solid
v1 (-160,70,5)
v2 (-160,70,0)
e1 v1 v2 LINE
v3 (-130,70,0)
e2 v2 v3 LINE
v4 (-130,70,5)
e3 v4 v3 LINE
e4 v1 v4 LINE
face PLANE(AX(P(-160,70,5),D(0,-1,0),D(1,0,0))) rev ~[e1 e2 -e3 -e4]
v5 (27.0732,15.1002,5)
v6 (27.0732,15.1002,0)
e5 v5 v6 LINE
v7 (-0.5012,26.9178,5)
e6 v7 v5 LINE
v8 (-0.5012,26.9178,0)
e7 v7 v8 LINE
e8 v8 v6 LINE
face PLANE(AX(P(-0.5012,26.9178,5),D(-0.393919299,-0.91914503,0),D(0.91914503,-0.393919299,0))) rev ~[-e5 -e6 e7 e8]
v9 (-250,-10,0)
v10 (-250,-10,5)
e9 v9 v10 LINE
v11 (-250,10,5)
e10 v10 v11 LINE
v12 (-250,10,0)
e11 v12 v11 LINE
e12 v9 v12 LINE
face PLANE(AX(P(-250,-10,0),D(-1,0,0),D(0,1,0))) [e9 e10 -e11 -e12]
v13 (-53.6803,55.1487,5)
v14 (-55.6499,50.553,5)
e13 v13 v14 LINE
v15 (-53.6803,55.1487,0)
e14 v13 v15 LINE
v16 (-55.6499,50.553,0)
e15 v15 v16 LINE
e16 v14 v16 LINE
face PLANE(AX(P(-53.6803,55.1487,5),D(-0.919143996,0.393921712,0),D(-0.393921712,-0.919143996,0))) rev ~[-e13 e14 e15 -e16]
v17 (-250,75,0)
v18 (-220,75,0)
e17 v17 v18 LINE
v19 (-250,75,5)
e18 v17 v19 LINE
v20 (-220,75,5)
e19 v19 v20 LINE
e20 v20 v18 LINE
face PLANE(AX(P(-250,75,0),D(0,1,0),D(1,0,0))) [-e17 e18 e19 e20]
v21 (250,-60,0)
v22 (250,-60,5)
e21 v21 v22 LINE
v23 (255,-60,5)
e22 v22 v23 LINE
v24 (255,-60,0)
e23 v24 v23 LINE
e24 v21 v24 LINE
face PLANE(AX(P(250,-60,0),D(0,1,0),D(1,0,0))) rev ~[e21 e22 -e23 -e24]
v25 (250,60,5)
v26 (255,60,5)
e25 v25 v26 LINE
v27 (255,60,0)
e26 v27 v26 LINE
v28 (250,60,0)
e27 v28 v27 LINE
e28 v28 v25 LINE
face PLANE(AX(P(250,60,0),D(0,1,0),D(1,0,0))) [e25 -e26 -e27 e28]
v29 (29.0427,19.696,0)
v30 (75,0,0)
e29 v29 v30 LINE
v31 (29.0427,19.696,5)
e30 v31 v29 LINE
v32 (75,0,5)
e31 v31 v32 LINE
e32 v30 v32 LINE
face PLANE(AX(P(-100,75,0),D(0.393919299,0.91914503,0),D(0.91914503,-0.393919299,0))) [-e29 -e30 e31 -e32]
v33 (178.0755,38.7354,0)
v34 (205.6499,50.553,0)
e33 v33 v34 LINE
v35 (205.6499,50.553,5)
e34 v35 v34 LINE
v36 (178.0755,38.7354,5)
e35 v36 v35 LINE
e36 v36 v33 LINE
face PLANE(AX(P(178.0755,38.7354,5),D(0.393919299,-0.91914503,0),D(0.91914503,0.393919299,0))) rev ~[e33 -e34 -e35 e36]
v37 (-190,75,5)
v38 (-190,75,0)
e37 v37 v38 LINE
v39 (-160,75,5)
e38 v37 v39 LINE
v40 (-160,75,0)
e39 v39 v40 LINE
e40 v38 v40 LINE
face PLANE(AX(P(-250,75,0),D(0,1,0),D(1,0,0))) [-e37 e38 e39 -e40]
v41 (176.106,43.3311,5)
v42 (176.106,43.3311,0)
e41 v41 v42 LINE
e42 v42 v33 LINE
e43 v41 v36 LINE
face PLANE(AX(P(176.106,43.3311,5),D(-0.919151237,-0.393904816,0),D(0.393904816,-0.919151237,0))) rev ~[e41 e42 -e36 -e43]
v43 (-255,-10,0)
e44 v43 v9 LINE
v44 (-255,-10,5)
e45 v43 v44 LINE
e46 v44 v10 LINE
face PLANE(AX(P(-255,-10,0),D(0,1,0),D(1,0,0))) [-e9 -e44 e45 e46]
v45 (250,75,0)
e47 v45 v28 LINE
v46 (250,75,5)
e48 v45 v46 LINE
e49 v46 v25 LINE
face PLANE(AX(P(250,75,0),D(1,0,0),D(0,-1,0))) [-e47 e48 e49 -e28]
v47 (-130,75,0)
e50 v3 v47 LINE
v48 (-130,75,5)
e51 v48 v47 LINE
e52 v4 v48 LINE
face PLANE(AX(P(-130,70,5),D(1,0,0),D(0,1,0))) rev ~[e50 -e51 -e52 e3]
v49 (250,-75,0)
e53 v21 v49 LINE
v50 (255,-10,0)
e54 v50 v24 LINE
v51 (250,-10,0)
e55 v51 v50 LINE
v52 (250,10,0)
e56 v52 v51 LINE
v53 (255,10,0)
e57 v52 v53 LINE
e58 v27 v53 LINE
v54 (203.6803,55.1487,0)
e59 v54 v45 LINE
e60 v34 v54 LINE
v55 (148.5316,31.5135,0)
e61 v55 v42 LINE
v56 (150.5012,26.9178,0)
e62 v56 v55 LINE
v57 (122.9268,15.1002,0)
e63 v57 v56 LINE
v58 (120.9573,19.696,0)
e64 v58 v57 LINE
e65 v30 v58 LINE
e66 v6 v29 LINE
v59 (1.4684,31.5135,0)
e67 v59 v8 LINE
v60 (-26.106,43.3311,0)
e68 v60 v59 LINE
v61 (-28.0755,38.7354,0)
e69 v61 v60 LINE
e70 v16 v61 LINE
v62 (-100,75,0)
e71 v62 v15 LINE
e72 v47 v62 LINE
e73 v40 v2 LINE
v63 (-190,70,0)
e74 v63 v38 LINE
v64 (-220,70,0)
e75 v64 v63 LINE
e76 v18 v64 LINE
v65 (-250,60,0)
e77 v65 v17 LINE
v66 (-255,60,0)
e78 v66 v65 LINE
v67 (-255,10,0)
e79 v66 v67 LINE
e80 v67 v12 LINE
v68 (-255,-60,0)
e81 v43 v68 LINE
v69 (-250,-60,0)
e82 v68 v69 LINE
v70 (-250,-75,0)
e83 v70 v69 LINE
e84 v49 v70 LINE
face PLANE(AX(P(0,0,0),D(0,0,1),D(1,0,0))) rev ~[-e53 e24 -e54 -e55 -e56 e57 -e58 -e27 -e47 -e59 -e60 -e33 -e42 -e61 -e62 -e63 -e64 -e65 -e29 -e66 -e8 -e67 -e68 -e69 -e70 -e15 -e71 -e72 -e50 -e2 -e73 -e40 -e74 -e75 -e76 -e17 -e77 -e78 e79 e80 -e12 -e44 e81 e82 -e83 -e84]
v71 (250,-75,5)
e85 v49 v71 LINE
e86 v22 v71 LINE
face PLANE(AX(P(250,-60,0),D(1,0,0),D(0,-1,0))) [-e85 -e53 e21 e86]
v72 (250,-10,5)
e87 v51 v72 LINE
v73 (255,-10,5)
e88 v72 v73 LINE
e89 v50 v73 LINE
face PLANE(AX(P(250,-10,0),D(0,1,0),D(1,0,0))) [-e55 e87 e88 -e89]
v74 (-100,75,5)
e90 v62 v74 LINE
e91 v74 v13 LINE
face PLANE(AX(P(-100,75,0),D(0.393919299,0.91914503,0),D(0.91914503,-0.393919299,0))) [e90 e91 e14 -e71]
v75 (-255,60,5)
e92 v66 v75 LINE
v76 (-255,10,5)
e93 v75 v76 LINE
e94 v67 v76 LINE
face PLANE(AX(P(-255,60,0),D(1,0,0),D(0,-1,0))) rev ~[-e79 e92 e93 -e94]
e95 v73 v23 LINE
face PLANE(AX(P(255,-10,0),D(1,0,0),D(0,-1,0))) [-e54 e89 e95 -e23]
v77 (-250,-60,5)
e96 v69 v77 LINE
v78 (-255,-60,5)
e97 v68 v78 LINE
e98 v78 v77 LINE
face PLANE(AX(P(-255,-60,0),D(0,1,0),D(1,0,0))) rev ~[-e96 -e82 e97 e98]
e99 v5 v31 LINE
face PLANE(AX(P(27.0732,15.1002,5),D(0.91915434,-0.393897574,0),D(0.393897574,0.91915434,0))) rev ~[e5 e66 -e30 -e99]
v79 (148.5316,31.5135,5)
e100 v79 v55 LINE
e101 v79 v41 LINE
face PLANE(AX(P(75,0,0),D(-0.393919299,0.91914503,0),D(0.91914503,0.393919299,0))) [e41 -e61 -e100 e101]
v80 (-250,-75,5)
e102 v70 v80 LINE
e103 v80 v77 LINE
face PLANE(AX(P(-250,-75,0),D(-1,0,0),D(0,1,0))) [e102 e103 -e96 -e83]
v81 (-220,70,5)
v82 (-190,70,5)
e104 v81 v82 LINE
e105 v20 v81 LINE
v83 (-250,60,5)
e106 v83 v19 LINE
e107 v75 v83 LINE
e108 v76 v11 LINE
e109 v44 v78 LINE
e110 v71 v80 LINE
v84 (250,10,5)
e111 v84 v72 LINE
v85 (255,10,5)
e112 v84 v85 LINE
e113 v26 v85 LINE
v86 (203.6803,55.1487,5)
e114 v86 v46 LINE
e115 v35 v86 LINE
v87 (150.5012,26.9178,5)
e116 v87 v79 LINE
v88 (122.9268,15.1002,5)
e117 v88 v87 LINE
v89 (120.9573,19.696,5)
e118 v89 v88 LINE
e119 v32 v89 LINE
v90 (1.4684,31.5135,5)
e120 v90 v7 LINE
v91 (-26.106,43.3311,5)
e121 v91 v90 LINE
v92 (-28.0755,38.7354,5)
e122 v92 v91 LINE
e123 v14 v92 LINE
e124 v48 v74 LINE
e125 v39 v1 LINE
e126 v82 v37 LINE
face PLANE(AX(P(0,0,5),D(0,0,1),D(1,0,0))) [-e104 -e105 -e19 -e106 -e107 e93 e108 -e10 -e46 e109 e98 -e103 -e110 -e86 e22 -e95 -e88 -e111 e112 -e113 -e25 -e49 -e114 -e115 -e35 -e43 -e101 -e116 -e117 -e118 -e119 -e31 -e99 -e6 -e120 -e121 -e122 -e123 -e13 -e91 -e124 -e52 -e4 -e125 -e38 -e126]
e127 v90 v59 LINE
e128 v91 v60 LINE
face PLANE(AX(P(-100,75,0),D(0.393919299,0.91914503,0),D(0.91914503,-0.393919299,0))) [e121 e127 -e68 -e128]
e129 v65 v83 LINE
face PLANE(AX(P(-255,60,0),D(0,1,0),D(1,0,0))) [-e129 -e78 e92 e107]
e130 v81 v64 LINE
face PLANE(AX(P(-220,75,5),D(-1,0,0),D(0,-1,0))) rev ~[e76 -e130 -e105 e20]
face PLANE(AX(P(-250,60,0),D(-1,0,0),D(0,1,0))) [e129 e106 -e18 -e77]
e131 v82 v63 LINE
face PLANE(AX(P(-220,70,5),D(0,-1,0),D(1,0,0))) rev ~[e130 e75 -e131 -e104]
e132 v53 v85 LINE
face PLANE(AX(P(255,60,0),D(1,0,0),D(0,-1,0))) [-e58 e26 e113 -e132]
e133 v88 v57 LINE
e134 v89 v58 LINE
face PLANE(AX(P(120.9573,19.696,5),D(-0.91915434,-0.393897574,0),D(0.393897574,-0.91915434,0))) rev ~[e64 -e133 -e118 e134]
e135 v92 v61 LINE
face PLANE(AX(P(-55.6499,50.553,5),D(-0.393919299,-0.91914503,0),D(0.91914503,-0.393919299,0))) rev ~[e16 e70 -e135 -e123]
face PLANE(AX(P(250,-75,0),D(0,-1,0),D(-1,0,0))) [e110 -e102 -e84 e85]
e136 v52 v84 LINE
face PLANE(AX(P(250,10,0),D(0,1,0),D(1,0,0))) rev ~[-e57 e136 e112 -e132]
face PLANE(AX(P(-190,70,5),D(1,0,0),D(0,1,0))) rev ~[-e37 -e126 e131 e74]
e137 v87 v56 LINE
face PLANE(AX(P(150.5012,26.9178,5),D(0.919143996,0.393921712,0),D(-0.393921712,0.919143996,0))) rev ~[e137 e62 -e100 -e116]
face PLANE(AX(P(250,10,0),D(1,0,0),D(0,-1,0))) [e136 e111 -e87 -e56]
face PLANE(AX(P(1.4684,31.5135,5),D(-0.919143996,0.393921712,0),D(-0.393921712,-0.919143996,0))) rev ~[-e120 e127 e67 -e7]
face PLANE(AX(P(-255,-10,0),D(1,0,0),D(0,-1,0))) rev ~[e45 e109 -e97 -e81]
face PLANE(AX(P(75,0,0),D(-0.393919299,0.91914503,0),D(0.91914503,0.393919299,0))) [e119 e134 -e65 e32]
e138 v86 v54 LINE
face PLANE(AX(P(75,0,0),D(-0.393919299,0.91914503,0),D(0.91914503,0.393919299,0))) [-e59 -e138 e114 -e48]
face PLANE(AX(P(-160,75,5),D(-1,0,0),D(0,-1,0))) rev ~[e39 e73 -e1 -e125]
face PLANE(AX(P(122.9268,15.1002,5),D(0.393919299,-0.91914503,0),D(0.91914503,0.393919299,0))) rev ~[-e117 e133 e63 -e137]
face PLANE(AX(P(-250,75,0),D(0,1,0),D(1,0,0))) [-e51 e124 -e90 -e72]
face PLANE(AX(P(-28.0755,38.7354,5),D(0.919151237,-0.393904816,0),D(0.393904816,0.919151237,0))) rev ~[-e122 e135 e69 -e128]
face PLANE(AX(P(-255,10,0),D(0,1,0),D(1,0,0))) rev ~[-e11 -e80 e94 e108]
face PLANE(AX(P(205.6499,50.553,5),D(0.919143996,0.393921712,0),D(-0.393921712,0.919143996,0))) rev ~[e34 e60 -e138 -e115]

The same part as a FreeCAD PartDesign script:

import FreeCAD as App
import Part
import Sketcher


def add_polygon(sketch, points):
    """Adds a closed chain of lines whose ends are joined by coincident constraints."""
    first, n = sketch.GeometryCount, len(points)
    for a, b in zip(points, points[1:] + points[:1]):
        sketch.addGeometry(Part.LineSegment(App.Vector(*a, 0), App.Vector(*b, 0)), False)
    for i in range(n):
        sketch.addConstraint(Sketcher.Constraint("Coincident", first + i, 2, first + (i + 1) % n, 1))

doc = App.newDocument("Part")
body = doc.addObject("PartDesign::Body", "Body")

# Sketch on XY plane
sketch1 = body.newObject("Sketcher::SketchObject", "Sketch")
sketch1.AttachmentSupport = (doc.getObject("XY_Plane"), [""])
sketch1.MapMode = "FlatFace"
add_polygon(sketch1, [(-250, -75), (250, -75), (250, -60), (255, -60), (255, -10), (250, -10), (250, 10), (255, 10), (255, 60), (250, 60), (250, 75), (75, 0), (-100, 75), (-250, 75), (-250, 60), (-255, 60), (-255, 10), (-250, 10), (-250, -10), (-255, -10), (-255, -60), (-250, -60)])  # lines 0-21
sketch1.addConstraint(Sketcher.Constraint("Horizontal", 0))
sketch1.addConstraint(Sketcher.Constraint("Vertical", 1))
sketch1.addConstraint(Sketcher.Constraint("Horizontal", 2))
sketch1.addConstraint(Sketcher.Constraint("Vertical", 3))
sketch1.addConstraint(Sketcher.Constraint("Horizontal", 4))
sketch1.addConstraint(Sketcher.Constraint("Vertical", 5))
sketch1.addConstraint(Sketcher.Constraint("Horizontal", 6))
sketch1.addConstraint(Sketcher.Constraint("Vertical", 7))
sketch1.addConstraint(Sketcher.Constraint("Horizontal", 8))
sketch1.addConstraint(Sketcher.Constraint("Vertical", 9))
sketch1.addConstraint(Sketcher.Constraint("Horizontal", 12))
sketch1.addConstraint(Sketcher.Constraint("Vertical", 13))
sketch1.addConstraint(Sketcher.Constraint("Horizontal", 14))
sketch1.addConstraint(Sketcher.Constraint("Vertical", 15))
sketch1.addConstraint(Sketcher.Constraint("Horizontal", 16))
sketch1.addConstraint(Sketcher.Constraint("Vertical", 17))
sketch1.addConstraint(Sketcher.Constraint("Horizontal", 18))
sketch1.addConstraint(Sketcher.Constraint("Vertical", 19))
sketch1.addConstraint(Sketcher.Constraint("Horizontal", 20))
sketch1.addConstraint(Sketcher.Constraint("Vertical", 21))
sketch1.addConstraint(Sketcher.Constraint("Symmetric", 0, 2, 12, 2, -1, 1))
sketch1.addConstraint(Sketcher.Constraint("Symmetric", 2, 2, 14, 2, -1, 1))
sketch1.addConstraint(Sketcher.Constraint("Symmetric", 4, 2, 16, 2, -1, 1))
sketch1.addConstraint(Sketcher.Constraint("Symmetric", 6, 2, 18, 2, -1, 1))
sketch1.addConstraint(Sketcher.Constraint("Symmetric", 8, 2, 20, 2, -1, 1))
sketch1.addConstraint(Sketcher.Constraint("Symmetric", 9, 2, 12, 2, -2))
sketch1.addConstraint(Sketcher.Constraint("Symmetric", 7, 2, 14, 2, -2))
sketch1.addConstraint(Sketcher.Constraint("PointOnObject", 10, 2, -1))
sketch1.addConstraint(Sketcher.Constraint("Horizontal", 6, 2, 15, 2))
sketch1.addConstraint(Sketcher.Constraint("Vertical", 1, 2, 4, 2))
sketch1.addConstraint(Sketcher.Constraint("Equal", 10, 11))
sketch1.addConstraint(Sketcher.Constraint("DistanceX", 0, 1, 0, 2, 500.0))
sketch1.addConstraint(Sketcher.Constraint("DistanceX", 2, 1, 2, 2, 5.0))
sketch1.addConstraint(Sketcher.Constraint("DistanceX", 12, 2, 12, 1, 150.0))
sketch1.addConstraint(Sketcher.Constraint("DistanceY", 1, 1, 1, 2, 15.0))
sketch1.addConstraint(Sketcher.Constraint("DistanceY", 3, 1, 3, 2, 50.0))
sketch1.addConstraint(Sketcher.Constraint("DistanceY", 5, 1, 5, 2, 20.0))
pad1 = body.newObject("PartDesign::Pad", "Pad")
pad1.Profile = sketch1
pad1.Length = 5

# Sketch on XY plane
sketch2 = body.newObject("Sketcher::SketchObject", "Sketch001")
sketch2.AttachmentSupport = (doc.getObject("XY_Plane"), [""])
sketch2.MapMode = "FlatFace"
sketch2.AttachmentOffset = App.Placement(App.Vector(0, 0, 5), App.Rotation())
add_polygon(sketch2, [(-0.5, 26.9), (27.1, 15.1), (29, 19.7), (1.5, 31.5)])  # lines 0-3
add_polygon(sketch2, [(148.5, 31.5), (121, 19.7), (122.9, 15.1), (150.5, 26.9)])  # lines 4-7
add_polygon(sketch2, [(-28.1, 38.7), (-26.1, 43.3), (-53.7, 55.1), (-55.6, 50.6)])  # lines 8-11
add_polygon(sketch2, [(203.7, 55.1), (176.1, 43.3), (178.1, 38.7), (205.6, 50.6)])  # lines 12-15
add_polygon(sketch2, [(-130, 70), (-130, 75), (-160, 75), (-160, 70)])  # lines 16-19
add_polygon(sketch2, [(-190, 70), (-190, 75), (-220, 75), (-220, 70)])  # lines 20-23
sketch2.addConstraint(Sketcher.Constraint("Vertical", 16))
sketch2.addConstraint(Sketcher.Constraint("Horizontal", 17))
sketch2.addConstraint(Sketcher.Constraint("Vertical", 18))
sketch2.addConstraint(Sketcher.Constraint("Horizontal", 19))
sketch2.addConstraint(Sketcher.Constraint("Vertical", 20))
sketch2.addConstraint(Sketcher.Constraint("Horizontal", 21))
sketch2.addConstraint(Sketcher.Constraint("Vertical", 22))
sketch2.addConstraint(Sketcher.Constraint("Horizontal", 23))
sketch2.addConstraint(Sketcher.Constraint("Perpendicular", 0, 1))
sketch2.addConstraint(Sketcher.Constraint("Perpendicular", 1, 2))
sketch2.addConstraint(Sketcher.Constraint("Perpendicular", 2, 3))
sketch2.addConstraint(Sketcher.Constraint("Perpendicular", 4, 5))
sketch2.addConstraint(Sketcher.Constraint("Perpendicular", 5, 6))
sketch2.addConstraint(Sketcher.Constraint("Perpendicular", 6, 7))
sketch2.addConstraint(Sketcher.Constraint("Parallel", 3, 8))
sketch2.addConstraint(Sketcher.Constraint("Perpendicular", 8, 9))
sketch2.addConstraint(Sketcher.Constraint("Perpendicular", 9, 10))
sketch2.addConstraint(Sketcher.Constraint("Perpendicular", 10, 11))
sketch2.addConstraint(Sketcher.Constraint("Perpendicular", 7, 12))
sketch2.addConstraint(Sketcher.Constraint("Perpendicular", 12, 13))
sketch2.addConstraint(Sketcher.Constraint("Perpendicular", 13, 14))
sketch2.addConstraint(Sketcher.Constraint("Perpendicular", 14, 15))
sketch2.addConstraint(Sketcher.Constraint("Horizontal", 1, 2, 4, 2))
sketch2.addConstraint(Sketcher.Constraint("Horizontal", 0, 2, 5, 2))
sketch2.addConstraint(Sketcher.Constraint("Horizontal", 3, 2, 6, 2))
sketch2.addConstraint(Sketcher.Constraint("Horizontal", 8, 2, 12, 2))
sketch2.addConstraint(Sketcher.Constraint("Horizontal", 11, 2, 13, 2))
sketch2.addConstraint(Sketcher.Constraint("Horizontal", 10, 2, 14, 2))
sketch2.addConstraint(Sketcher.Constraint("Horizontal", 17, 2, 20, 2))
sketch2.addConstraint(Sketcher.Constraint("Horizontal", 19, 2, 22, 2))
sketch2.addConstraint(Sketcher.Constraint("Equal", 19, 21))
sketch2.addConstraint(Sketcher.Constraint("Equal", 2, 4))
sketch2.addConstraint(Sketcher.Constraint("Equal", 7, 8))
sketch2.addConstraint(Sketcher.Constraint("Equal", 6, 9))
sketch2.addConstraint(Sketcher.Constraint("DistanceX", 17, 2, 17, 1, 30.0))
sketch2.addConstraint(Sketcher.Constraint("DistanceY", 16, 1, 16, 2, 5.0))
sketch2.addConstraint(Sketcher.Constraint("Distance", 0, 30.0))
sketch2.addConstraint(Sketcher.Constraint("Distance", 1, 5.0))
sketch2.addConstraint(Sketcher.Constraint("DistanceX", 16, 2, -1, 1, 130.0))
sketch2.addConstraint(Sketcher.Constraint("DistanceY", -1, 1, 16, 2, 75.0))
sketch2.addConstraint(Sketcher.Constraint("DistanceX", 20, 2, -1, 1, 190.0))
sketch2.addConstraint(Sketcher.Constraint("DistanceX", 10, 2, -1, 1, 55.65))
sketch2.addConstraint(Sketcher.Constraint("DistanceX", -1, 1, 14, 2, 205.65))
sketch2.addConstraint(Sketcher.Constraint("DistanceY", -1, 1, 1, 2, 19.696))
sketch2.addConstraint(Sketcher.Constraint("DistanceX", 8, 2, -1, 1, 26.106))
sketch2.addConstraint(Sketcher.Constraint("DistanceY", -1, 1, 8, 2, 43.331))
sketch2.addConstraint(Sketcher.Constraint("DistanceX", 0, 2, 4, 2, 93.884))
sketch2.addConstraint(Sketcher.Constraint("DistanceX", 9, 2, 3, 2, 53.179))
pocket1 = body.newObject("PartDesign::Pocket", "Pocket")
pocket1.Profile = sketch2
pocket1.Length = 5

doc.recompute()
